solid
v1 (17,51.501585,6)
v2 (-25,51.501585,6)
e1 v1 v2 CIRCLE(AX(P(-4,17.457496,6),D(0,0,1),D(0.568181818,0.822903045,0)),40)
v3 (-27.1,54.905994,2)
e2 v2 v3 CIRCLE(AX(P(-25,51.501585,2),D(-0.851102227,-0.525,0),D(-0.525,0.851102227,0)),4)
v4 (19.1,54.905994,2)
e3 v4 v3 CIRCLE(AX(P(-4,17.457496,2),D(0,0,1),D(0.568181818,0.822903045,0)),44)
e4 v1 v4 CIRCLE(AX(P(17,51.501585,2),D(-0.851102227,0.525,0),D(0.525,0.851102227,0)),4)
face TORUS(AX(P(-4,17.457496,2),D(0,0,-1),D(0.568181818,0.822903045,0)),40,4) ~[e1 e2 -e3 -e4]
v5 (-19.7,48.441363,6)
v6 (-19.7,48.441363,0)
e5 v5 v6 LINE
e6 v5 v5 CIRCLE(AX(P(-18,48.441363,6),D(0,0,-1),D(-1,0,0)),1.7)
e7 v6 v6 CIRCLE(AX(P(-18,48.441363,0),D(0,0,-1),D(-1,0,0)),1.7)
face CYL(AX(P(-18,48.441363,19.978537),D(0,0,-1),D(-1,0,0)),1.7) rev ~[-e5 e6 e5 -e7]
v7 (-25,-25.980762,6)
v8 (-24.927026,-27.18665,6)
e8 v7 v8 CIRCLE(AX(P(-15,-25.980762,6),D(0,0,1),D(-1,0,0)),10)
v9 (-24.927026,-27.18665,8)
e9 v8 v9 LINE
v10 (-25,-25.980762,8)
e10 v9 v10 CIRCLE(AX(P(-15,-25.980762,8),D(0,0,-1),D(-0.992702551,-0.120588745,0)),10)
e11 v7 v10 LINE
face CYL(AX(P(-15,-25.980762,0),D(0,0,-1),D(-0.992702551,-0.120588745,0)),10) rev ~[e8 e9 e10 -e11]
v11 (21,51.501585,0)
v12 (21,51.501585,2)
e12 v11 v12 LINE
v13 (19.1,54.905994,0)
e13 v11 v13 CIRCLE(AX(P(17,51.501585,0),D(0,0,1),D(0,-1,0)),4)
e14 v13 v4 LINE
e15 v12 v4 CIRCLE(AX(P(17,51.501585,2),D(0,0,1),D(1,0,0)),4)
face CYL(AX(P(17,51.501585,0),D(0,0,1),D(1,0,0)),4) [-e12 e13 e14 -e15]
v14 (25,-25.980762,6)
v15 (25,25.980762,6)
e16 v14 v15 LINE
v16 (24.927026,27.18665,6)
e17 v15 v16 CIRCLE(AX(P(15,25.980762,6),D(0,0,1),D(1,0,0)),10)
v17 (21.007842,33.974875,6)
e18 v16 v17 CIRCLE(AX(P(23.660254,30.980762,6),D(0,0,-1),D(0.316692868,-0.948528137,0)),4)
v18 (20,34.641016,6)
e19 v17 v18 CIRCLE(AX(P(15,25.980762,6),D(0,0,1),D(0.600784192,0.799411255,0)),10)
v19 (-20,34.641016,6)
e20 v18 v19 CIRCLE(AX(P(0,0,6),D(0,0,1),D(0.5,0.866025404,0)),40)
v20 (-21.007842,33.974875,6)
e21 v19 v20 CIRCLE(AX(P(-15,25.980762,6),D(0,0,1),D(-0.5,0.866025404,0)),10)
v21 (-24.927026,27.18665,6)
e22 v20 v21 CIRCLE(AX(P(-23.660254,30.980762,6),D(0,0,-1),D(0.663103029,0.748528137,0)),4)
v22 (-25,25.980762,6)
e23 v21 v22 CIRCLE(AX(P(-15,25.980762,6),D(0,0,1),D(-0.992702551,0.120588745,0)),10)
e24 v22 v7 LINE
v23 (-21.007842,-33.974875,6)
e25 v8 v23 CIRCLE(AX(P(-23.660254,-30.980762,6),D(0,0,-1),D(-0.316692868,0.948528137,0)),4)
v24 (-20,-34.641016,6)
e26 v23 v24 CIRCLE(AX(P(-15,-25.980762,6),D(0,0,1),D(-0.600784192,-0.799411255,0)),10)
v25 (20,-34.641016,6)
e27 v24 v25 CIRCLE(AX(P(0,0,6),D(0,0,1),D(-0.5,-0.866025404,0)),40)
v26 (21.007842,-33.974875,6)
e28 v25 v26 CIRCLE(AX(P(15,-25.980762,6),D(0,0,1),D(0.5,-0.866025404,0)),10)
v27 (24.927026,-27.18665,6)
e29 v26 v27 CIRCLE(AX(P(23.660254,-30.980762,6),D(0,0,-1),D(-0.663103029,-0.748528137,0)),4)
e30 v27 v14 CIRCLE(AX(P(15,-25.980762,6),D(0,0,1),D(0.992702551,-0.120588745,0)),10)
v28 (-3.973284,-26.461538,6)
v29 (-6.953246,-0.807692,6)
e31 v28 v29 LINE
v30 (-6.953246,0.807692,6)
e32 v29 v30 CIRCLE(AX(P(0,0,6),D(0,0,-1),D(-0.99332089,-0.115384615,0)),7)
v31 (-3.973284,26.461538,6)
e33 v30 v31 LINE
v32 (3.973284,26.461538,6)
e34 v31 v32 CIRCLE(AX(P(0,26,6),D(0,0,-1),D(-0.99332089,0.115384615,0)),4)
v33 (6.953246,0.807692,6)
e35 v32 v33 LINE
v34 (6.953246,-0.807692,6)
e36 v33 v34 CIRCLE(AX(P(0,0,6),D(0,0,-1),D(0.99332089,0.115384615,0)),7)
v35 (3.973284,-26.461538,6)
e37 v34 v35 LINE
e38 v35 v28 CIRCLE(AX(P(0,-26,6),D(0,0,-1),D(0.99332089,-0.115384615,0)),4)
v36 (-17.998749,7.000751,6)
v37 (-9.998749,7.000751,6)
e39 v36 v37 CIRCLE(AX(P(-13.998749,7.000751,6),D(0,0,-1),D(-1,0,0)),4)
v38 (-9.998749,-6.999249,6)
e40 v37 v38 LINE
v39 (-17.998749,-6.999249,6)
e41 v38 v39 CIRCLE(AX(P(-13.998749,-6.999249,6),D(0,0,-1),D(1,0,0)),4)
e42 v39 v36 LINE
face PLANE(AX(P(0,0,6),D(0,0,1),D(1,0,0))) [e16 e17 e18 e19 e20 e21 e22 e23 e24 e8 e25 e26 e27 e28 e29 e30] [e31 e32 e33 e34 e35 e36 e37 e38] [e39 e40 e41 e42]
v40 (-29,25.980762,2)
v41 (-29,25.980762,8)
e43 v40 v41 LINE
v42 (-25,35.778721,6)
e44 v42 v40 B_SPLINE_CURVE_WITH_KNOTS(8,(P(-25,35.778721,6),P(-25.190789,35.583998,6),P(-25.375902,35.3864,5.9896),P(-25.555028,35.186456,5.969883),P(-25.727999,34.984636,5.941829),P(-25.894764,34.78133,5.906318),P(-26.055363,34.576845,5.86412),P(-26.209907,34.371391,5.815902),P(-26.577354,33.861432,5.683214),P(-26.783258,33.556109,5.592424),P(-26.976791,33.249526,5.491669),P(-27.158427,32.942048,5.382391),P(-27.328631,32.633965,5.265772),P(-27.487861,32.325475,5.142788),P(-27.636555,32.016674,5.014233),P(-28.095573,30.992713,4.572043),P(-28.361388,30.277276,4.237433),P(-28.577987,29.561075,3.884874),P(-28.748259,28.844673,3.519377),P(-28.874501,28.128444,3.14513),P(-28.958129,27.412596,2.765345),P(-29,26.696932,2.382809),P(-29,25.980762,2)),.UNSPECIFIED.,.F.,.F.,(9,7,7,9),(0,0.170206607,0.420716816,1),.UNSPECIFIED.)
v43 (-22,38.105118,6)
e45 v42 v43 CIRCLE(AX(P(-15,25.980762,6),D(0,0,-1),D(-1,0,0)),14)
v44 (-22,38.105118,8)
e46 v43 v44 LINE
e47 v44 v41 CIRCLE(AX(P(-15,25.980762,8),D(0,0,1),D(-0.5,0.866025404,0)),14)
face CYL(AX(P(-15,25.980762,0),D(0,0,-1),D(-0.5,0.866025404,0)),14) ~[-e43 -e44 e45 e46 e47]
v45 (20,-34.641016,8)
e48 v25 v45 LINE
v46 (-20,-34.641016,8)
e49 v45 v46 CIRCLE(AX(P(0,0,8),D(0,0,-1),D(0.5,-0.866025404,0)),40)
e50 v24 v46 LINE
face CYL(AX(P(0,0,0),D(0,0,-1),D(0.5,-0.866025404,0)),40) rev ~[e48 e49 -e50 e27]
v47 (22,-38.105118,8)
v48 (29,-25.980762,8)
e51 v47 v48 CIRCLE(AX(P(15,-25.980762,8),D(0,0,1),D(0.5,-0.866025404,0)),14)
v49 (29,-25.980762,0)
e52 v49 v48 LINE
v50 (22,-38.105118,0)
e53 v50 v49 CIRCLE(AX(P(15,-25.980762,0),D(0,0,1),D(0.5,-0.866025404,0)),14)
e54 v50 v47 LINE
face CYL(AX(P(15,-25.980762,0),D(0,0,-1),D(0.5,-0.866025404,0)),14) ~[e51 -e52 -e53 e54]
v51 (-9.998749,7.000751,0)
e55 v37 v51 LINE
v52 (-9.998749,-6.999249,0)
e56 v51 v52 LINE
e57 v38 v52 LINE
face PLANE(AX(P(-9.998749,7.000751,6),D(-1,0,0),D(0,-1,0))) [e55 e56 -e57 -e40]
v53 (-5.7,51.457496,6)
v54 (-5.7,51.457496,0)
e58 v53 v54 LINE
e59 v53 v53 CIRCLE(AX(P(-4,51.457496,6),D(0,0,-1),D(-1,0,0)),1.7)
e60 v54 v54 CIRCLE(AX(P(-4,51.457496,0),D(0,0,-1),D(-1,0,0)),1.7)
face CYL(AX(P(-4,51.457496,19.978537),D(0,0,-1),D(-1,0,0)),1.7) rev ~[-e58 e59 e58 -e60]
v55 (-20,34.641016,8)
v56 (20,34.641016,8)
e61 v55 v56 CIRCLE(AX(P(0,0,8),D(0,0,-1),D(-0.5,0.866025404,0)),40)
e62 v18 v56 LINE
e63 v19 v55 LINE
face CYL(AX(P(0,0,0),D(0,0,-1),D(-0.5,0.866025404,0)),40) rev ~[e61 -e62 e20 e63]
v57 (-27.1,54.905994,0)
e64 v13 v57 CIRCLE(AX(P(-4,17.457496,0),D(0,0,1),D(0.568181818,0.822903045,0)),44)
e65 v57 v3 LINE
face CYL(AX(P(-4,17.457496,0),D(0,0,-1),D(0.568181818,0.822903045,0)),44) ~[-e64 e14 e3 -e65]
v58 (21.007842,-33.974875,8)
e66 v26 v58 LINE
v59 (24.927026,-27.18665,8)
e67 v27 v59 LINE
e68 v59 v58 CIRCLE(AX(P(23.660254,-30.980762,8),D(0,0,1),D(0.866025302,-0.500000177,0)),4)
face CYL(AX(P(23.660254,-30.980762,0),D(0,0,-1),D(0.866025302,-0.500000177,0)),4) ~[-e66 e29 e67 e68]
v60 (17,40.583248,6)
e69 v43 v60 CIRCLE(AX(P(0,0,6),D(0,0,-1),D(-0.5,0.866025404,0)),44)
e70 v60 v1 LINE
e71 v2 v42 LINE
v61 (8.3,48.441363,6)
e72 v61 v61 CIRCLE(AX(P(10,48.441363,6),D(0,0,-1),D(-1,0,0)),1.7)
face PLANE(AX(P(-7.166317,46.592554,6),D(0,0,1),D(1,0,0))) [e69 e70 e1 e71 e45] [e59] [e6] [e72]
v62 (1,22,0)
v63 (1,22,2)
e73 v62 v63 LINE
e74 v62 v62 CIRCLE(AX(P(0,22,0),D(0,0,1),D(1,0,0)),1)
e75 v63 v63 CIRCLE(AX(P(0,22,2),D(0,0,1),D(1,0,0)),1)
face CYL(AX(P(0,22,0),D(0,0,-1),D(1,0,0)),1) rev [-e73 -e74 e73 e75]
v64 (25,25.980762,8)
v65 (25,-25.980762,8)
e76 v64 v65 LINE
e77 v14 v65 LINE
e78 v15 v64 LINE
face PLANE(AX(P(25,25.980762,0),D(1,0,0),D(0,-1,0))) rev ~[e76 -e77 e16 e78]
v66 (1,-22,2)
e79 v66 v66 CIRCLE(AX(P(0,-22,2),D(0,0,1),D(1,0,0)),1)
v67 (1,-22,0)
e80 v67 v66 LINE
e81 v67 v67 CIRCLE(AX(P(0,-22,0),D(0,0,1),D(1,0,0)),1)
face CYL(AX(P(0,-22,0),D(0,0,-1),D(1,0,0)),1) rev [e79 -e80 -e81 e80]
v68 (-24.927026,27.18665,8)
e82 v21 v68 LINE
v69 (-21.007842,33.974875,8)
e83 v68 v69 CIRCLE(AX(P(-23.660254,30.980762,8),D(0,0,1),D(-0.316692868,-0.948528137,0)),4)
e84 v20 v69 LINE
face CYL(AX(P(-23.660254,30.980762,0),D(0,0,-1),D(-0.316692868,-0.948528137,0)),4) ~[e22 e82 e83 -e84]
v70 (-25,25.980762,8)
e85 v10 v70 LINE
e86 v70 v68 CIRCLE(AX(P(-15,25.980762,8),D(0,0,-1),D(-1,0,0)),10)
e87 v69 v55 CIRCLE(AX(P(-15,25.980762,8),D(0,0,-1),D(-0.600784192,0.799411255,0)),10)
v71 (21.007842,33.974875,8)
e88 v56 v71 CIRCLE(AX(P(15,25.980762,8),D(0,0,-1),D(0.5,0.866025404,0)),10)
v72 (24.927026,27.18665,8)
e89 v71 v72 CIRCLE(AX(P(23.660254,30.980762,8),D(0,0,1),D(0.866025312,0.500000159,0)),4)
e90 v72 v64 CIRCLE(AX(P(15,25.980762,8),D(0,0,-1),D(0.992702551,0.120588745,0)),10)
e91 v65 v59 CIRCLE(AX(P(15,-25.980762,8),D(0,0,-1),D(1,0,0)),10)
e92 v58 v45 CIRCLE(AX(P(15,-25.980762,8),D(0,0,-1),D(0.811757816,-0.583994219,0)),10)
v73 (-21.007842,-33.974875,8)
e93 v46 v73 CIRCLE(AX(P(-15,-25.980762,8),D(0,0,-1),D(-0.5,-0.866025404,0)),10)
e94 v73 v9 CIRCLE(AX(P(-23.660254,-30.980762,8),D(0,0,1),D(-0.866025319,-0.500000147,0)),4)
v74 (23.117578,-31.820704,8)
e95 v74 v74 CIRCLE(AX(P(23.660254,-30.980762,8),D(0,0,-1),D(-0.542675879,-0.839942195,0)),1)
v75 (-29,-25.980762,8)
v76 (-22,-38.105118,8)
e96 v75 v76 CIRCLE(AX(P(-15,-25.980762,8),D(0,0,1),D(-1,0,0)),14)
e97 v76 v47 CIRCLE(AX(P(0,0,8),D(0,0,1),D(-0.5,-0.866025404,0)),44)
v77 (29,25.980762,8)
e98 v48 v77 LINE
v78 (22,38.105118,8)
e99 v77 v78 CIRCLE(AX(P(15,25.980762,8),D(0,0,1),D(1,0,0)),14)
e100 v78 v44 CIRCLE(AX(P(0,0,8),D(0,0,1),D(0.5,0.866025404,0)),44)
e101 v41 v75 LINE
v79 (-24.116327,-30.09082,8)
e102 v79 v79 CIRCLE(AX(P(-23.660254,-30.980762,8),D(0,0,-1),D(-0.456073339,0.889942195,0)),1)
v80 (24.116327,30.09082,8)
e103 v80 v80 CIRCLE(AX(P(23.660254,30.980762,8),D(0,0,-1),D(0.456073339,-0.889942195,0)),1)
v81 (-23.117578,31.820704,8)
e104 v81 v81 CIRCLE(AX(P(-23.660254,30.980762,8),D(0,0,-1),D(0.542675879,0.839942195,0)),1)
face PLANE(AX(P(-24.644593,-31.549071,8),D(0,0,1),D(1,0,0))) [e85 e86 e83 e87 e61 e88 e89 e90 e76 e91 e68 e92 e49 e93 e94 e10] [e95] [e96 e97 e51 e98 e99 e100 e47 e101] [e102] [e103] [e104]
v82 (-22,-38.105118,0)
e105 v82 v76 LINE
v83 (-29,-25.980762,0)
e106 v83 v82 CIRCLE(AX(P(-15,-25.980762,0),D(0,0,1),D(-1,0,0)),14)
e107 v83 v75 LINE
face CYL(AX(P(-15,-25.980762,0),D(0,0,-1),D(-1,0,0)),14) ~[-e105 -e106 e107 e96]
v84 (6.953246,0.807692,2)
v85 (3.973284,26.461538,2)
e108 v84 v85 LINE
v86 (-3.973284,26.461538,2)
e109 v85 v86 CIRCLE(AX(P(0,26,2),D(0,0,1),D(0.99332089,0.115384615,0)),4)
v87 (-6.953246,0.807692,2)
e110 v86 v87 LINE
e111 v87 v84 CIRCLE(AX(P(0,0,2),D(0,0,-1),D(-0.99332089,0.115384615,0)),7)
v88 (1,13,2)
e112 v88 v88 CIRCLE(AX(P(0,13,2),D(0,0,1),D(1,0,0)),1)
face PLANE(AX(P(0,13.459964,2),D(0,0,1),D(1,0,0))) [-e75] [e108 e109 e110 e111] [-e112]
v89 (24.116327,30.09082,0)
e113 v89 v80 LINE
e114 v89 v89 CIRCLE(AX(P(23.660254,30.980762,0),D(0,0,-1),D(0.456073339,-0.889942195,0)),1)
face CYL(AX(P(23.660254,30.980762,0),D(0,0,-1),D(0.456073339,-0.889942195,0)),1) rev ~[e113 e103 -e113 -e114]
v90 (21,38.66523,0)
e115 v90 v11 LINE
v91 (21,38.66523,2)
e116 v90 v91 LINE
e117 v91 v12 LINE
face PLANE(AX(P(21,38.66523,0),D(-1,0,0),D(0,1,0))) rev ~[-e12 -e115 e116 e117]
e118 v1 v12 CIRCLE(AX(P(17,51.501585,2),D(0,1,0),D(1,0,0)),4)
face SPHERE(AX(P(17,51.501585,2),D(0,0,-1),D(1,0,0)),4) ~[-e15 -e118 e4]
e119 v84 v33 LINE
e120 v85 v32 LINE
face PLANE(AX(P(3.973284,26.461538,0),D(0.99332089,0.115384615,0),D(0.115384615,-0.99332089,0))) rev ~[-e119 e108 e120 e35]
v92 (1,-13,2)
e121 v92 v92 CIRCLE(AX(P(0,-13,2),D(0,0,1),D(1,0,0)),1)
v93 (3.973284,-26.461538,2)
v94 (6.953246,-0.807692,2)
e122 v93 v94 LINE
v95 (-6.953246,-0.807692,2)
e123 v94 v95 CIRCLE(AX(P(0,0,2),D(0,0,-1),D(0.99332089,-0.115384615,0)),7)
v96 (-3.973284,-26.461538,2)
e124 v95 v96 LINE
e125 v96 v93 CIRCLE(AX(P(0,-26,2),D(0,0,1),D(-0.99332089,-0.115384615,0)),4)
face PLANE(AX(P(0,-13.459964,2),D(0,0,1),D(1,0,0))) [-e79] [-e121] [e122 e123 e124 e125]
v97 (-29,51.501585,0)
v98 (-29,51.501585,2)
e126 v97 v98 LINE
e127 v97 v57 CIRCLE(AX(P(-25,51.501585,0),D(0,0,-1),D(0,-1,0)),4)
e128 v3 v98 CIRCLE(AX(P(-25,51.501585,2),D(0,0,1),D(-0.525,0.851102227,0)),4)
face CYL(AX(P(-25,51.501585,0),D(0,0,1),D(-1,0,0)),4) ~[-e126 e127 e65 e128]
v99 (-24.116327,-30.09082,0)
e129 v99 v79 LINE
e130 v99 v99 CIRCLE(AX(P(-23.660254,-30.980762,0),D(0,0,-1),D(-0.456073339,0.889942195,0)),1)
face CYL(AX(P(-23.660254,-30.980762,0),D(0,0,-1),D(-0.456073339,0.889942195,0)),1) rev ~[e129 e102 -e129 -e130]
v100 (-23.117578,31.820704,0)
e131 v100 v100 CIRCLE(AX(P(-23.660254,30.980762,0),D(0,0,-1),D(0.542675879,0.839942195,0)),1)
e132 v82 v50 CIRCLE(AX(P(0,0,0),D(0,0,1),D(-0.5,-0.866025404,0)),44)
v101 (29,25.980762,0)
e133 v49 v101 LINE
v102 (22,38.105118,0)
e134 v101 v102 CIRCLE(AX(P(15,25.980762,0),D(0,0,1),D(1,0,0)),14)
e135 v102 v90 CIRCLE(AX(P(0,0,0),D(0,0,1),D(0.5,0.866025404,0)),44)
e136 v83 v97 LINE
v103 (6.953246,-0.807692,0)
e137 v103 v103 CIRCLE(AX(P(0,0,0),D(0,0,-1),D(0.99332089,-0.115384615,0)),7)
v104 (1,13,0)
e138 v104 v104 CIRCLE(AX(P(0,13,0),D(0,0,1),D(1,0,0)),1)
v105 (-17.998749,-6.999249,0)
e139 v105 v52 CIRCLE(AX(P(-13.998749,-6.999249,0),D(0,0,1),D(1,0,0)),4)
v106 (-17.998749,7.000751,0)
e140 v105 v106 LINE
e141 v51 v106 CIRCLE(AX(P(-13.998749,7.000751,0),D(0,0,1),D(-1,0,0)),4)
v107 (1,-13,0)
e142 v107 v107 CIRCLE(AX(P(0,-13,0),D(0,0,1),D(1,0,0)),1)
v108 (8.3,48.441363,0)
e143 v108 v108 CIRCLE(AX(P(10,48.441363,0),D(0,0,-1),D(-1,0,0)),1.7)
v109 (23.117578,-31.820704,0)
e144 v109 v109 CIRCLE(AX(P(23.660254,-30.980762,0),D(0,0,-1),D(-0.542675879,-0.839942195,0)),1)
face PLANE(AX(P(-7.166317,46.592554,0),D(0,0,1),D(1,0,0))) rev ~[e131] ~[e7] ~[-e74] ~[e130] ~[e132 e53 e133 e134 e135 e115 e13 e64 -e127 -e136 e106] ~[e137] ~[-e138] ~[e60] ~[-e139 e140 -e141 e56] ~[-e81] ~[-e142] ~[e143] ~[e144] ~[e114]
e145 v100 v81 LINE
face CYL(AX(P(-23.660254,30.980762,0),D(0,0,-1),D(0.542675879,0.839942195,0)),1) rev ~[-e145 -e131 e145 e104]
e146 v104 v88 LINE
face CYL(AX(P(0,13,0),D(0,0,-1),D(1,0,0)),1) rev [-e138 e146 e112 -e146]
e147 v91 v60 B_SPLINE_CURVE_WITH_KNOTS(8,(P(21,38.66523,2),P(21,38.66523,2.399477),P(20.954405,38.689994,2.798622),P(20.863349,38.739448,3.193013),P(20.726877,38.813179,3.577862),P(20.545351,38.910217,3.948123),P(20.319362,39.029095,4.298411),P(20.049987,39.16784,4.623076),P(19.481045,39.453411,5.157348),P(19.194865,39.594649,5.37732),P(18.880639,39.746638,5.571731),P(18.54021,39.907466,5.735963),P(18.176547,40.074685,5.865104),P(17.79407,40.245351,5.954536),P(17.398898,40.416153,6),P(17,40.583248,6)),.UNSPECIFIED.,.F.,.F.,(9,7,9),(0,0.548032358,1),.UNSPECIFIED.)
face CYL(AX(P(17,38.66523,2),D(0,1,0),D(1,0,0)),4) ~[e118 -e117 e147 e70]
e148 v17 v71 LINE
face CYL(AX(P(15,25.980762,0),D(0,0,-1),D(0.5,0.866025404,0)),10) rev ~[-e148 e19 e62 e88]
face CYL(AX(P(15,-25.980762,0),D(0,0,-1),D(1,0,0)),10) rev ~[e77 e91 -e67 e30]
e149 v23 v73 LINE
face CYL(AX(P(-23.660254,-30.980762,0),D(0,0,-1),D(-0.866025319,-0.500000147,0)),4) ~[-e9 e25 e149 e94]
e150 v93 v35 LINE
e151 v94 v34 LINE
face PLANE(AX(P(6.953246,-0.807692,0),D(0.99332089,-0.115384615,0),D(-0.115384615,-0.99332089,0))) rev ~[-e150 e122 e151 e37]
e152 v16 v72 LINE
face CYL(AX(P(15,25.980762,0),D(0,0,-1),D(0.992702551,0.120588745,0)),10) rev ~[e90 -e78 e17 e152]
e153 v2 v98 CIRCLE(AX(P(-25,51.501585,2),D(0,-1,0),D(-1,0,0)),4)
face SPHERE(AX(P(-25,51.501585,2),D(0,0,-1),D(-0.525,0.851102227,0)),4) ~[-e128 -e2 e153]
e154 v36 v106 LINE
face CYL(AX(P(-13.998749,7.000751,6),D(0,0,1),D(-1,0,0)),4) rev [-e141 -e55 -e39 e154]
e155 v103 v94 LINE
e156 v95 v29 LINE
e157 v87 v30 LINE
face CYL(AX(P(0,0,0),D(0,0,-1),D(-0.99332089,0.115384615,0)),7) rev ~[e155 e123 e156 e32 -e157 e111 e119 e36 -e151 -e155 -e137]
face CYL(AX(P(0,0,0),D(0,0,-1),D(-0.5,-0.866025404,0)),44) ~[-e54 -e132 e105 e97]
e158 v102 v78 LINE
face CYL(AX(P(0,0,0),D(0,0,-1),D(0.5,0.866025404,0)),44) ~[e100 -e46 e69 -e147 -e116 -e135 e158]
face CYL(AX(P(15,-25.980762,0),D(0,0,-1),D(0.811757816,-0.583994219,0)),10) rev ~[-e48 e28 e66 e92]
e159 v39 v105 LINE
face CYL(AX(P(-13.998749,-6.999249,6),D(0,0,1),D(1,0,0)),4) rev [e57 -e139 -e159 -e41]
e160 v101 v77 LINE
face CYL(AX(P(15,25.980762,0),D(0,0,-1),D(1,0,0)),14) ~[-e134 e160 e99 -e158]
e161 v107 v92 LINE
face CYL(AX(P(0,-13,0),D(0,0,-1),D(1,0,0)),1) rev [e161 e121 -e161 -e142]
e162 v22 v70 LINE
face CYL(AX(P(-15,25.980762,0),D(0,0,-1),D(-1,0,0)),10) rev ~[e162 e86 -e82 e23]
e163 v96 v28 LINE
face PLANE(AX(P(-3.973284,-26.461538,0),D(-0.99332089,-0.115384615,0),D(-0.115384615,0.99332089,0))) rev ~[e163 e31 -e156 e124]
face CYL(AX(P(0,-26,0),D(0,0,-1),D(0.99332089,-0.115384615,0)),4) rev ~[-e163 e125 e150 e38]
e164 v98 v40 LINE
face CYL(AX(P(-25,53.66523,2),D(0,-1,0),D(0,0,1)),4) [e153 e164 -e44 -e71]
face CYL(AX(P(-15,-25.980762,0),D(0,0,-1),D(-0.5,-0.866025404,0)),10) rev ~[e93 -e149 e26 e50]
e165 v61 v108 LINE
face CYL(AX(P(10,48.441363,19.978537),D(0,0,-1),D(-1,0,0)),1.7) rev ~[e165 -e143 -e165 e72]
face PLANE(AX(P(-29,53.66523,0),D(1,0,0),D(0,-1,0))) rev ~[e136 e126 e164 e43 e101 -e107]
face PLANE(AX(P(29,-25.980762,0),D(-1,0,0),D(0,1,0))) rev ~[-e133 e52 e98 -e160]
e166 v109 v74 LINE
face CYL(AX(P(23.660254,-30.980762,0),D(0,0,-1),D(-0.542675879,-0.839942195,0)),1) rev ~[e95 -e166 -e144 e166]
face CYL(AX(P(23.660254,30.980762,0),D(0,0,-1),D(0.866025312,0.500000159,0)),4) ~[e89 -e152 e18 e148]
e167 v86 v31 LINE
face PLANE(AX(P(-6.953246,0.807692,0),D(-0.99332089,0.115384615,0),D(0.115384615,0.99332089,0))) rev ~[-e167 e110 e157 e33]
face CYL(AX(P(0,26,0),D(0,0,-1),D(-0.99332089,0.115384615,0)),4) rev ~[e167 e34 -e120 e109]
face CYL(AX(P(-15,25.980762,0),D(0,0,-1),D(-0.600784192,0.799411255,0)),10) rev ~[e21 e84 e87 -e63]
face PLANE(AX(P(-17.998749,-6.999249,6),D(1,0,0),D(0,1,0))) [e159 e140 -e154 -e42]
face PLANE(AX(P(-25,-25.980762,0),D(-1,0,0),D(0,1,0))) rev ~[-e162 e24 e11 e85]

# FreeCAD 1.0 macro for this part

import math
import FreeCAD as App
import Part
import Sketcher

V = App.Vector


def edges_at(feature, points):
    """Names of the edges that pass closest to the given points."""
    edges = feature.Shape.Edges
    near = lambda p: min(range(len(edges)), key=lambda i: edges[i].distToShape(Part.Vertex(*p))[0])
    return sorted({f"Edge{near(p) + 1}" for p in points})

doc = App.newDocument("Part")
body = doc.addObject("PartDesign::Body", "Body")

# Sketch on XY plane
sketch1 = body.newObject("Sketcher::SketchObject", "Sketch")
sketch1.AttachmentSupport = (doc.getObject("XY_Plane"), [""])
sketch1.MapMode = "FlatFace"
sketch1.addGeometry(Part.LineSegment(V(25, -26, 0), V(25, 26, 0)), False)
sketch1.addGeometry(Part.ArcOfCircle(Part.Circle(V(15, 26, 0), V(0, 0, 1), 10), math.radians(0), math.radians(6.93)), False)
sketch1.addGeometry(Part.ArcOfCircle(Part.Circle(V(23.7, 31, 0), V(0, 0, 1), 4), math.radians(132), math.radians(288)), False)
sketch1.addGeometry(Part.ArcOfCircle(Part.Circle(V(15, 26, 0), V(0, 0, 1), 10), math.radians(53.07), math.radians(60)), False)
sketch1.addGeometry(Part.ArcOfCircle(Part.Circle(V(0, 0, 0), V(0, 0, 1), 40), math.radians(60), math.radians(120)), False)
sketch1.addGeometry(Part.ArcOfCircle(Part.Circle(V(-15, 26, 0), V(0, 0, 1), 10), math.radians(120), math.radians(126.93)), False)
sketch1.addGeometry(Part.ArcOfCircle(Part.Circle(V(-23.7, 31, 0), V(0, 0, 1), 4), math.radians(-108), math.radians(48)), False)
sketch1.addGeometry(Part.ArcOfCircle(Part.Circle(V(-15, 26, 0), V(0, 0, 1), 10), math.radians(173.07), math.radians(180)), False)
sketch1.addGeometry(Part.LineSegment(V(-25, 26, 0), V(-25, -26, 0)), False)
sketch1.addGeometry(Part.ArcOfCircle(Part.Circle(V(-15, -26, 0), V(0, 0, 1), 10), math.radians(180), math.radians(186.93)), False)
sketch1.addGeometry(Part.ArcOfCircle(Part.Circle(V(-23.7, -31, 0), V(0, 0, 1), 4), math.radians(-48), math.radians(108)), False)
sketch1.addGeometry(Part.ArcOfCircle(Part.Circle(V(-15, -26, 0), V(0, 0, 1), 10), math.radians(-126.93), math.radians(-120)), False)
sketch1.addGeometry(Part.ArcOfCircle(Part.Circle(V(0, 0, 0), V(0, 0, 1), 40), math.radians(-120), math.radians(-60)), False)
sketch1.addGeometry(Part.ArcOfCircle(Part.Circle(V(15, -26, 0), V(0, 0, 1), 10), math.radians(-60), math.radians(-53.07)), False)
sketch1.addGeometry(Part.ArcOfCircle(Part.Circle(V(23.7, -31, 0), V(0, 0, 1), 4), math.radians(72), math.radians(228)), False)
sketch1.addGeometry(Part.ArcOfCircle(Part.Circle(V(15, -26, 0), V(0, 0, 1), 10), math.radians(-6.93), math.radians(0)), False)
sketch1.addGeometry(Part.LineSegment(V(-4, -26.5, 0), V(-7, -0.8, 0)), False)
sketch1.addGeometry(Part.ArcOfCircle(Part.Circle(V(0, 0, 0), V(0, 0, 1), 7), math.radians(173.37), math.radians(186.63)), False)
sketch1.addGeometry(Part.LineSegment(V(-7, 0.8, 0), V(-4, 26.5, 0)), False)
sketch1.addGeometry(Part.ArcOfCircle(Part.Circle(V(0, 26, 0), V(0, 0, 1), 4), math.radians(7), math.radians(173)), False)
sketch1.addGeometry(Part.LineSegment(V(4, 26.5, 0), V(7, 0.8, 0)), False)
sketch1.addGeometry(Part.ArcOfCircle(Part.Circle(V(0, 0, 0), V(0, 0, 1), 7), math.radians(-6.63), math.radians(6.63)), False)
sketch1.addGeometry(Part.LineSegment(V(7, -0.8, 0), V(4, -26.5, 0)), False)
sketch1.addGeometry(Part.ArcOfCircle(Part.Circle(V(0, -26, 0), V(0, 0, 1), 4), math.radians(-173), math.radians(-7)), False)
sketch1.addConstraint(Sketcher.Constraint("Tangent", 0, 2, 1, 1))
sketch1.addConstraint(Sketcher.Constraint("Coincident", 1, 2, 2, 2))
sketch1.addConstraint(Sketcher.Constraint("Coincident", 2, 1, 3, 1))
sketch1.addConstraint(Sketcher.Constraint("Tangent", 3, 2, 4, 1))
sketch1.addConstraint(Sketcher.Constraint("Tangent", 4, 2, 5, 1))
sketch1.addConstraint(Sketcher.Constraint("Coincident", 5, 2, 6, 2))
sketch1.addConstraint(Sketcher.Constraint("Coincident", 6, 1, 7, 1))
sketch1.addConstraint(Sketcher.Constraint("Tangent", 7, 2, 8, 1))
sketch1.addConstraint(Sketcher.Constraint("Tangent", 8, 2, 9, 1))
sketch1.addConstraint(Sketcher.Constraint("Coincident", 9, 2, 10, 2))
sketch1.addConstraint(Sketcher.Constraint("Coincident", 10, 1, 11, 1))
sketch1.addConstraint(Sketcher.Constraint("Tangent", 11, 2, 12, 1))
sketch1.addConstraint(Sketcher.Constraint("Tangent", 12, 2, 13, 1))
sketch1.addConstraint(Sketcher.Constraint("Coincident", 13, 2, 14, 2))
sketch1.addConstraint(Sketcher.Constraint("Coincident", 14, 1, 15, 1))
sketch1.addConstraint(Sketcher.Constraint("Tangent", 15, 2, 0, 1))
sketch1.addConstraint(Sketcher.Constraint("Tangent", 16, 2, 17, 2))
sketch1.addConstraint(Sketcher.Constraint("Tangent", 17, 1, 18, 1))
sketch1.addConstraint(Sketcher.Constraint("Tangent", 18, 2, 19, 2))
sketch1.addConstraint(Sketcher.Constraint("Tangent", 19, 1, 20, 1))
sketch1.addConstraint(Sketcher.Constraint("Tangent", 20, 2, 21, 2))
sketch1.addConstraint(Sketcher.Constraint("Tangent", 21, 1, 22, 1))
sketch1.addConstraint(Sketcher.Constraint("Tangent", 22, 2, 23, 2))
sketch1.addConstraint(Sketcher.Constraint("Tangent", 23, 1, 16, 1))
sketch1.addConstraint(Sketcher.Constraint("Vertical", 0))
sketch1.addConstraint(Sketcher.Constraint("Vertical", 8))
sketch1.addConstraint(Sketcher.Constraint("Coincident", 4, 3, -1, 1))
sketch1.addConstraint(Sketcher.Constraint("Coincident", 12, 3, -1, 1))
sketch1.addConstraint(Sketcher.Constraint("Coincident", 17, 3, -1, 1))
sketch1.addConstraint(Sketcher.Constraint("Coincident", 21, 3, -1, 1))
sketch1.addConstraint(Sketcher.Constraint("Coincident", 3, 3, 1, 3))
sketch1.addConstraint(Sketcher.Constraint("Coincident", 7, 3, 5, 3))
sketch1.addConstraint(Sketcher.Constraint("Coincident", 11, 3, 9, 3))
sketch1.addConstraint(Sketcher.Constraint("Coincident", 15, 3, 13, 3))
sketch1.addConstraint(Sketcher.Constraint("Equal", 1, 3))
sketch1.addConstraint(Sketcher.Constraint("Equal", 3, 5))
sketch1.addConstraint(Sketcher.Constraint("Equal", 2, 6))
sketch1.addConstraint(Sketcher.Constraint("Equal", 5, 7))
sketch1.addConstraint(Sketcher.Constraint("Equal", 7, 9))
sketch1.addConstraint(Sketcher.Constraint("Equal", 6, 10))
sketch1.addConstraint(Sketcher.Constraint("Equal", 9, 11))
sketch1.addConstraint(Sketcher.Constraint("Equal", 4, 12))
sketch1.addConstraint(Sketcher.Constraint("Equal", 11, 13))
sketch1.addConstraint(Sketcher.Constraint("Equal", 10, 14))
sketch1.addConstraint(Sketcher.Constraint("Equal", 13, 15))
sketch1.addConstraint(Sketcher.Constraint("Equal", 14, 19))
sketch1.addConstraint(Sketcher.Constraint("Equal", 17, 21))
sketch1.addConstraint(Sketcher.Constraint("Equal", 19, 23))
sketch1.addConstraint(Sketcher.Constraint("Symmetric", 2, 3, 10, 3, -1, 1))
sketch1.addConstraint(Sketcher.Constraint("Symmetric", 6, 3, 14, 3, -1, 1))
sketch1.addConstraint(Sketcher.Constraint("Symmetric", 19, 3, 23, 3, -1, 1))
sketch1.addConstraint(Sketcher.Constraint("Symmetric", 2, 3, 6, 3, -2))
sketch1.addConstraint(Sketcher.Constraint("PointOnObject", 19, 3, -2))
sketch1.addConstraint(Sketcher.Constraint("Horizontal", 3, 3, 5, 3))
sketch1.addConstraint(Sketcher.Constraint("Radius", 1, 10.0))
sketch1.addConstraint(Sketcher.Constraint("Radius", 2, 4.0))
sketch1.addConstraint(Sketcher.Constraint("Radius", 4, 40.0))
sketch1.addConstraint(Sketcher.Constraint("Radius", 17, 7.0))
sketch1.addConstraint(Sketcher.Constraint("DistanceX", -1, 1, 1, 3, 15.0))
sketch1.addConstraint(Sketcher.Constraint("DistanceY", -1, 1, 19, 3, 26.0))
sketch1.addConstraint(Sketcher.Constraint("DistanceY", 1, 3, 2, 3, 5.0))
sketch1.addConstraint(Sketcher.Constraint("DistanceY", -1, 1, 1, 2, 27.18665))
pad1 = body.newObject("PartDesign::Pad", "Pad")
pad1.Profile = sketch1
pad1.Length = 6

# Sketch on XY plane
sketch2 = body.newObject("Sketcher::SketchObject", "Sketch001")
sketch2.AttachmentSupport = (doc.getObject("XY_Plane"), [""])
sketch2.MapMode = "FlatFace"
sketch2.addGeometry(Part.LineSegment(V(-4, 26.5, 0), V(-7, 0.8, 0)), False)
sketch2.addGeometry(Part.ArcOfCircle(Part.Circle(V(0, 0, 0), V(0, 0, 1), 7), math.radians(7), math.radians(173)), False)
sketch2.addGeometry(Part.LineSegment(V(7, 0.8, 0), V(4, 26.5, 0)), False)
sketch2.addGeometry(Part.ArcOfCircle(Part.Circle(V(0, 26, 0), V(0, 0, 1), 4), math.radians(7), math.radians(173)), False)
sketch2.addGeometry(Part.Circle(V(0, 13, 0), V(0, 0, 1), 1), False)
sketch2.addGeometry(Part.Circle(V(0, 22, 0), V(0, 0, 1), 1), False)
sketch2.addGeometry(Part.ArcOfCircle(Part.Circle(V(0, 0, 0), V(0, 0, 1), 7), math.radians(-173), math.radians(-7)), False)
sketch2.addGeometry(Part.LineSegment(V(-7, -0.8, 0), V(-4, -26.5, 0)), False)
sketch2.addGeometry(Part.ArcOfCircle(Part.Circle(V(0, -26, 0), V(0, 0, 1), 4), math.radians(-173), math.radians(-7)), False)
sketch2.addGeometry(Part.LineSegment(V(4, -26.5, 0), V(7, -0.8, 0)), False)
sketch2.addGeometry(Part.Circle(V(0, -22, 0), V(0, 0, 1), 1), False)
sketch2.addGeometry(Part.Circle(V(0, -13, 0), V(0, 0, 1), 1), False)
sketch2.addConstraint(Sketcher.Constraint("Tangent", 0, 2, 1, 2))
sketch2.addConstraint(Sketcher.Constraint("Tangent", 1, 1, 2, 1))
sketch2.addConstraint(Sketcher.Constraint("Tangent", 2, 2, 3, 1))
sketch2.addConstraint(Sketcher.Constraint("Tangent", 3, 2, 0, 1))
sketch2.addConstraint(Sketcher.Constraint("Tangent", 6, 1, 7, 1))
sketch2.addConstraint(Sketcher.Constraint("Tangent", 7, 2, 8, 1))
sketch2.addConstraint(Sketcher.Constraint("Tangent", 8, 2, 9, 1))
sketch2.addConstraint(Sketcher.Constraint("Tangent", 9, 2, 6, 2))
sketch2.addConstraint(Sketcher.Constraint("Coincident", 1, 3, -1, 1))
sketch2.addConstraint(Sketcher.Constraint("Coincident", 6, 3, -1, 1))
sketch2.addConstraint(Sketcher.Constraint("Equal", 4, 5))
sketch2.addConstraint(Sketcher.Constraint("Equal", 1, 6))
sketch2.addConstraint(Sketcher.Constraint("Equal", 3, 8))
sketch2.addConstraint(Sketcher.Constraint("Equal", 5, 10))
sketch2.addConstraint(Sketcher.Constraint("Equal", 10, 11))
sketch2.addConstraint(Sketcher.Constraint("Symmetric", 3, 3, 8, 3, -1, 1))
sketch2.addConstraint(Sketcher.Constraint("Symmetric", 5, 3, 10, 3, -1, 1))
sketch2.addConstraint(Sketcher.Constraint("Symmetric", 4, 3, 11, 3, -1, 1))
sketch2.addConstraint(Sketcher.Constraint("PointOnObject", 3, 3, -2))
sketch2.addConstraint(Sketcher.Constraint("PointOnObject", 4, 3, -2))
sketch2.addConstraint(Sketcher.Constraint("PointOnObject", 5, 3, -2))
sketch2.addConstraint(Sketcher.Constraint("Diameter", 4, 2.0))
sketch2.addConstraint(Sketcher.Constraint("Radius", 1, 7.0))
sketch2.addConstraint(Sketcher.Constraint("Radius", 3, 4.0))
sketch2.addConstraint(Sketcher.Constraint("DistanceY", -1, 1, 3, 3, 26.0))
sketch2.addConstraint(Sketcher.Constraint("DistanceY", -1, 1, 4, 3, 13.0))
sketch2.addConstraint(Sketcher.Constraint("DistanceY", -1, 1, 5, 3, 22.0))
pad2 = body.newObject("PartDesign::Pad", "Pad001")
pad2.Profile = sketch2
pad2.Length = 2

# Sketch on XY plane
sketch3 = body.newObject("Sketcher::SketchObject", "Sketch002")
sketch3.AttachmentSupport = (doc.getObject("XY_Plane"), [""])
sketch3.MapMode = "FlatFace"
sketch3.addGeometry(Part.ArcOfCircle(Part.Circle(V(15, 26, 0), V(0, 0, 1), 14), math.radians(0), math.radians(60)), False)
sketch3.addGeometry(Part.ArcOfCircle(Part.Circle(V(0, 0, 0), V(0, 0, 1), 44), math.radians(60), math.radians(120)), False)
sketch3.addGeometry(Part.ArcOfCircle(Part.Circle(V(-15, 26, 0), V(0, 0, 1), 14), math.radians(120), math.radians(180)), False)
sketch3.addGeometry(Part.LineSegment(V(-29, 26, 0), V(-29, -26, 0)), False)
sketch3.addGeometry(Part.ArcOfCircle(Part.Circle(V(-15, -26, 0), V(0, 0, 1), 14), math.radians(180), math.radians(240)), False)
sketch3.addGeometry(Part.ArcOfCircle(Part.Circle(V(0, 0, 0), V(0, 0, 1), 44), math.radians(-120), math.radians(-60)), False)
sketch3.addGeometry(Part.ArcOfCircle(Part.Circle(V(15, -26, 0), V(0, 0, 1), 14), math.radians(-60), math.radians(0)), False)
sketch3.addGeometry(Part.LineSegment(V(29, -26, 0), V(29, 26, 0)), False)
sketch3.addGeometry(Part.Circle(V(-23.7, 31, 0), V(0, 0, 1), 1), False)
sketch3.addGeometry(Part.Circle(V(-23.7, -31, 0), V(0, 0, 1), 1), False)
sketch3.addGeometry(Part.Circle(V(23.7, -31, 0), V(0, 0, 1), 1), False)
sketch3.addGeometry(Part.Circle(V(23.7, 31, 0), V(0, 0, 1), 1), False)
sketch3.addGeometry(Part.ArcOfCircle(Part.Circle(V(-15, 26, 0), V(0, 0, 1), 10), math.radians(173.07), math.radians(180)), False)
sketch3.addGeometry(Part.ArcOfCircle(Part.Circle(V(-23.7, 31, 0), V(0, 0, 1), 4), math.radians(-108), math.radians(48)), False)
sketch3.addGeometry(Part.ArcOfCircle(Part.Circle(V(-15, 26, 0), V(0, 0, 1), 10), math.radians(120), math.radians(126.93)), False)
sketch3.addGeometry(Part.ArcOfCircle(Part.Circle(V(0, 0, 0), V(0, 0, 1), 40), math.radians(60), math.radians(120)), False)
sketch3.addGeometry(Part.ArcOfCircle(Part.Circle(V(15, 26, 0), V(0, 0, 1), 10), math.radians(53.07), math.radians(60)), False)
sketch3.addGeometry(Part.ArcOfCircle(Part.Circle(V(23.7, 31, 0), V(0, 0, 1), 4), math.radians(132), math.radians(288)), False)
sketch3.addGeometry(Part.ArcOfCircle(Part.Circle(V(15, 26, 0), V(0, 0, 1), 10), math.radians(0), math.radians(6.93)), False)
sketch3.addGeometry(Part.LineSegment(V(25, 26, 0), V(25, -26, 0)), False)
sketch3.addGeometry(Part.ArcOfCircle(Part.Circle(V(15, -26, 0), V(0, 0, 1), 10), math.radians(-6.93), math.radians(0)), False)
sketch3.addGeometry(Part.ArcOfCircle(Part.Circle(V(23.7, -31, 0), V(0, 0, 1), 4), math.radians(72), math.radians(228)), False)
sketch3.addGeometry(Part.ArcOfCircle(Part.Circle(V(15, -26, 0), V(0, 0, 1), 10), math.radians(-60), math.radians(-53.07)), False)
sketch3.addGeometry(Part.ArcOfCircle(Part.Circle(V(0, 0, 0), V(0, 0, 1), 40), math.radians(-120), math.radians(-60)), False)
sketch3.addGeometry(Part.ArcOfCircle(Part.Circle(V(-15, -26, 0), V(0, 0, 1), 10), math.radians(-126.93), math.radians(-120)), False)
sketch3.addGeometry(Part.ArcOfCircle(Part.Circle(V(-23.7, -31, 0), V(0, 0, 1), 4), math.radians(-48), math.radians(108)), False)
sketch3.addGeometry(Part.ArcOfCircle(Part.Circle(V(-15, -26, 0), V(0, 0, 1), 10), math.radians(180), math.radians(186.93)), False)
sketch3.addGeometry(Part.LineSegment(V(-25, -26, 0), V(-25, 26, 0)), False)
sketch3.addConstraint(Sketcher.Constraint("Tangent", 0, 2, 1, 1))
sketch3.addConstraint(Sketcher.Constraint("Tangent", 1, 2, 2, 1))
sketch3.addConstraint(Sketcher.Constraint("Tangent", 2, 2, 3, 1))
sketch3.addConstraint(Sketcher.Constraint("Tangent", 3, 2, 4, 1))
sketch3.addConstraint(Sketcher.Constraint("Tangent", 4, 2, 5, 1))
sketch3.addConstraint(Sketcher.Constraint("Tangent", 5, 2, 6, 1))
sketch3.addConstraint(Sketcher.Constraint("Tangent", 6, 2, 7, 1))
sketch3.addConstraint(Sketcher.Constraint("Tangent", 7, 2, 0, 1))
sketch3.addConstraint(Sketcher.Constraint("Coincident", 12, 1, 13, 1))
sketch3.addConstraint(Sketcher.Constraint("Coincident", 13, 2, 14, 2))
sketch3.addConstraint(Sketcher.Constraint("Tangent", 14, 1, 15, 2))
sketch3.addConstraint(Sketcher.Constraint("Tangent", 15, 1, 16, 2))
sketch3.addConstraint(Sketcher.Constraint("Coincident", 16, 1, 17, 1))
sketch3.addConstraint(Sketcher.Constraint("Coincident", 17, 2, 18, 2))
sketch3.addConstraint(Sketcher.Constraint("Tangent", 18, 1, 19, 1))
sketch3.addConstraint(Sketcher.Constraint("Tangent", 19, 2, 20, 2))
sketch3.addConstraint(Sketcher.Constraint("Coincident", 20, 1, 21, 1))
sketch3.addConstraint(Sketcher.Constraint("Coincident", 21, 2, 22, 2))
sketch3.addConstraint(Sketcher.Constraint("Tangent", 22, 1, 23, 2))
sketch3.addConstraint(Sketcher.Constraint("Tangent", 23, 1, 24, 2))
sketch3.addConstraint(Sketcher.Constraint("Coincident", 24, 1, 25, 1))
sketch3.addConstraint(Sketcher.Constraint("Coincident", 25, 2, 26, 2))
sketch3.addConstraint(Sketcher.Constraint("Tangent", 26, 1, 27, 1))
sketch3.addConstraint(Sketcher.Constraint("Tangent", 27, 2, 12, 2))
sketch3.addConstraint(Sketcher.Constraint("Vertical", 3))
sketch3.addConstraint(Sketcher.Constraint("Vertical", 7))
sketch3.addConstraint(Sketcher.Constraint("Vertical", 19))
sketch3.addConstraint(Sketcher.Constraint("Vertical", 27))
sketch3.addConstraint(Sketcher.Constraint("Coincident", 1, 3, -1, 1))
sketch3.addConstraint(Sketcher.Constraint("Coincident", 5, 3, -1, 1))
sketch3.addConstraint(Sketcher.Constraint("Coincident", 15, 3, -1, 1))
sketch3.addConstraint(Sketcher.Constraint("Coincident", 23, 3, -1, 1))
sketch3.addConstraint(Sketcher.Constraint("Coincident", 12, 3, 2, 3))
sketch3.addConstraint(Sketcher.Constraint("Coincident", 13, 3, 8, 3))
sketch3.addConstraint(Sketcher.Constraint("Coincident", 14, 3, 2, 3))
sketch3.addConstraint(Sketcher.Constraint("Coincident", 16, 3, 0, 3))
sketch3.addConstraint(Sketcher.Constraint("Coincident", 17, 3, 11, 3))
sketch3.addConstraint(Sketcher.Constraint("Coincident", 18, 3, 0, 3))
sketch3.addConstraint(Sketcher.Constraint("Coincident", 20, 3, 6, 3))
sketch3.addConstraint(Sketcher.Constraint("Coincident", 21, 3, 10, 3))
sketch3.addConstraint(Sketcher.Constraint("Coincident", 22, 3, 6, 3))
sketch3.addConstraint(Sketcher.Constraint("Coincident", 24, 3, 4, 3))
sketch3.addConstraint(Sketcher.Constraint("Coincident", 25, 3, 9, 3))
sketch3.addConstraint(Sketcher.Constraint("Coincident", 26, 3, 4, 3))
sketch3.addConstraint(Sketcher.Constraint("Equal", 0, 2))
sketch3.addConstraint(Sketcher.Constraint("Equal", 2, 4))
sketch3.addConstraint(Sketcher.Constraint("Equal", 1, 5))
sketch3.addConstraint(Sketcher.Constraint("Equal", 4, 6))
sketch3.addConstraint(Sketcher.Constraint("Equal", 8, 9))
sketch3.addConstraint(Sketcher.Constraint("Equal", 9, 10))
sketch3.addConstraint(Sketcher.Constraint("Equal", 10, 11))
sketch3.addConstraint(Sketcher.Constraint("Equal", 12, 14))
sketch3.addConstraint(Sketcher.Constraint("Equal", 13, 17))
sketch3.addConstraint(Sketcher.Constraint("Equal", 16, 18))
sketch3.addConstraint(Sketcher.Constraint("Equal", 17, 21))
sketch3.addConstraint(Sketcher.Constraint("Equal", 20, 22))
sketch3.addConstraint(Sketcher.Constraint("Equal", 21, 25))
sketch3.addConstraint(Sketcher.Constraint("Symmetric", 8, 3, 10, 3, -1, 1))
sketch3.addConstraint(Sketcher.Constraint("Symmetric", 9, 3, 11, 3, -1, 1))
sketch3.addConstraint(Sketcher.Constraint("Symmetric", 9, 3, 10, 3, -2))
sketch3.addConstraint(Sketcher.Constraint("Horizontal", 0, 3, 2, 3))
sketch3.addConstraint(Sketcher.Constraint("Diameter", 8, 2.0))
sketch3.addConstraint(Sketcher.Constraint("Radius", 0, 14.0))
sketch3.addConstraint(Sketcher.Constraint("Radius", 1, 44.0))
sketch3.addConstraint(Sketcher.Constraint("Radius", 12, 10.0))
sketch3.addConstraint(Sketcher.Constraint("Radius", 13, 4.0))
sketch3.addConstraint(Sketcher.Constraint("DistanceX", -1, 1, 0, 3, 15.0))
sketch3.addConstraint(Sketcher.Constraint("DistanceY", 2, 3, 8, 3, 5.0))
sketch3.addConstraint(Sketcher.Constraint("DistanceY", -1, 1, 12, 1, 27.18665))
pad3 = body.newObject("PartDesign::Pad", "Pad002")
pad3.Profile = sketch3
pad3.Length = 8

# Sketch on XY plane
sketch4 = body.newObject("Sketcher::SketchObject", "Sketch003")
sketch4.AttachmentSupport = (doc.getObject("XY_Plane"), [""])
sketch4.MapMode = "FlatFace"
sketch4.AttachmentOffset = App.Placement(V(0, 0, 6), App.Rotation())
sketch4.addGeometry(Part.LineSegment(V(-18, 7, 0), V(-18, -7, 0)), False)
sketch4.addGeometry(Part.ArcOfCircle(Part.Circle(V(-14, -7, 0), V(0, 0, 1), 4), math.radians(180), math.radians(360)), False)
sketch4.addGeometry(Part.LineSegment(V(-10, -7, 0), V(-10, 7, 0)), False)
sketch4.addGeometry(Part.ArcOfCircle(Part.Circle(V(-14, 7, 0), V(0, 0, 1), 4), math.radians(0), math.radians(180)), False)
sketch4.addConstraint(Sketcher.Constraint("Tangent", 0, 2, 1, 1))
sketch4.addConstraint(Sketcher.Constraint("Tangent", 1, 2, 2, 1))
sketch4.addConstraint(Sketcher.Constraint("Tangent", 2, 2, 3, 1))
sketch4.addConstraint(Sketcher.Constraint("Tangent", 3, 2, 0, 1))
sketch4.addConstraint(Sketcher.Constraint("Vertical", 0))
sketch4.addConstraint(Sketcher.Constraint("Vertical", 2))
sketch4.addConstraint(Sketcher.Constraint("Radius", 1, 4.0))
sketch4.addConstraint(Sketcher.Constraint("DistanceY", 0, 2, 0, 1, 14.0))
sketch4.addConstraint(Sketcher.Constraint("DistanceX", 1, 3, -1, 1, 13.998749))
sketch4.addConstraint(Sketcher.Constraint("DistanceY", 1, 3, -1, 1, 6.999249))
pocket1 = body.newObject("PartDesign::Pocket", "Pocket")
pocket1.Profile = sketch4
pocket1.Type = "ThroughAll"

# Sketch on XY plane
sketch5 = body.newObject("Sketcher::SketchObject", "Sketch004")
sketch5.AttachmentSupport = (doc.getObject("XY_Plane"), [""])
sketch5.MapMode = "FlatFace"
sketch5.addGeometry(Part.ArcOfCircle(Part.Circle(V(0, 0, 0), V(0, 0, 1), 44), math.radians(61), math.radians(120)), False)
sketch5.addGeometry(Part.LineSegment(V(21, 39, 0), V(21, 54, 0)), False)
sketch5.addGeometry(Part.ArcOfCircle(Part.Circle(V(-4, 17, 0), V(0, 0, 1), 44), math.radians(55), math.radians(125)), False)
sketch5.addGeometry(Part.LineSegment(V(-29, 54, 0), V(-29, 26, 0)), False)
sketch5.addGeometry(Part.ArcOfCircle(Part.Circle(V(-15, 26, 0), V(0, 0, 1), 14), math.radians(120), math.radians(180)), False)
sketch5.addConstraint(Sketcher.Constraint("Coincident", 0, 1, 1, 1))
sketch5.addConstraint(Sketcher.Constraint("Coincident", 1, 2, 2, 1))
sketch5.addConstraint(Sketcher.Constraint("Coincident", 2, 2, 3, 1))
sketch5.addConstraint(Sketcher.Constraint("Tangent", 3, 2, 4, 2))
sketch5.addConstraint(Sketcher.Constraint("Tangent", 4, 1, 0, 2))
sketch5.addConstraint(Sketcher.Constraint("Vertical", 1))
sketch5.addConstraint(Sketcher.Constraint("Vertical", 3))
sketch5.addConstraint(Sketcher.Constraint("Coincident", 0, 3, -1, 1))
sketch5.addConstraint(Sketcher.Constraint("Equal", 0, 2))
sketch5.addConstraint(Sketcher.Constraint("Horizontal", 1, 2, 2, 2))
sketch5.addConstraint(Sketcher.Constraint("Radius", 0, 44.0))
sketch5.addConstraint(Sketcher.Constraint("Radius", 4, 14.0))
sketch5.addConstraint(Sketcher.Constraint("DistanceY", 1, 1, 1, 2, 15.0))
sketch5.addConstraint(Sketcher.Constraint("DistanceX", 2, 3, -1, 1, 4.0))
sketch5.addConstraint(Sketcher.Constraint("DistanceX", 4, 3, -1, 1, 15.0))
pad4 = body.newObject("PartDesign::Pad", "Pad003")
pad4.Profile = sketch5
pad4.Length = 6
doc.recompute()

fillet = body.newObject("PartDesign::Fillet", "Fillet")
fillet.Base = (pad4, edges_at(pad4, [
    (-4, 61.457, 6),
    (21, 53.665, 3),
    (-29, 39.823, 6),
    (-29, 53.665, 3),
    (21, 46.165, 6),
]))
fillet.Radius = 4

# Sketch on XY plane
sketch6 = body.newObject("Sketcher::SketchObject", "Sketch005")
sketch6.AttachmentSupport = (doc.getObject("XY_Plane"), [""])
sketch6.MapMode = "FlatFace"
sketch6.AttachmentOffset = App.Placement(V(0, 0, 6), App.Rotation())
sketch6.addGeometry(Part.Circle(V(-18, 48.4, 0), V(0, 0, 1), 1.7), False)
sketch6.addGeometry(Part.Circle(V(-4, 51.5, 0), V(0, 0, 1), 1.7), False)
sketch6.addGeometry(Part.Circle(V(10, 48.4, 0), V(0, 0, 1), 1.7), False)
sketch6.addConstraint(Sketcher.Constraint("Equal", 0, 1))
sketch6.addConstraint(Sketcher.Constraint("Equal", 1, 2))
sketch6.addConstraint(Sketcher.Constraint("Horizontal", 0, 3, 2, 3))
sketch6.addConstraint(Sketcher.Constraint("Diameter", 0, 3.4))
sketch6.addConstraint(Sketcher.Constraint("DistanceX", 0, 3, -1, 1, 18.0))
sketch6.addConstraint(Sketcher.Constraint("DistanceX", 1, 3, -1, 1, 4.0))
sketch6.addConstraint(Sketcher.Constraint("DistanceX", -1, 1, 2, 3, 10.0))
sketch6.addConstraint(Sketcher.Constraint("DistanceY", -1, 1, 0, 3, 48.441363))
sketch6.addConstraint(Sketcher.Constraint("DistanceY", -1, 1, 1, 3, 51.457496))
doc.recompute()
hole = body.newObject("PartDesign::Hole", "Hole")
hole.Profile = sketch6
hole.ThreadType = "None"
hole.Diameter = 3.4
hole.DepthType = "Dimension"
hole.Depth = 13.978537
hole.DrillPoint = "Angled"
hole.DrillPointAngle = 118

doc.recompute()
